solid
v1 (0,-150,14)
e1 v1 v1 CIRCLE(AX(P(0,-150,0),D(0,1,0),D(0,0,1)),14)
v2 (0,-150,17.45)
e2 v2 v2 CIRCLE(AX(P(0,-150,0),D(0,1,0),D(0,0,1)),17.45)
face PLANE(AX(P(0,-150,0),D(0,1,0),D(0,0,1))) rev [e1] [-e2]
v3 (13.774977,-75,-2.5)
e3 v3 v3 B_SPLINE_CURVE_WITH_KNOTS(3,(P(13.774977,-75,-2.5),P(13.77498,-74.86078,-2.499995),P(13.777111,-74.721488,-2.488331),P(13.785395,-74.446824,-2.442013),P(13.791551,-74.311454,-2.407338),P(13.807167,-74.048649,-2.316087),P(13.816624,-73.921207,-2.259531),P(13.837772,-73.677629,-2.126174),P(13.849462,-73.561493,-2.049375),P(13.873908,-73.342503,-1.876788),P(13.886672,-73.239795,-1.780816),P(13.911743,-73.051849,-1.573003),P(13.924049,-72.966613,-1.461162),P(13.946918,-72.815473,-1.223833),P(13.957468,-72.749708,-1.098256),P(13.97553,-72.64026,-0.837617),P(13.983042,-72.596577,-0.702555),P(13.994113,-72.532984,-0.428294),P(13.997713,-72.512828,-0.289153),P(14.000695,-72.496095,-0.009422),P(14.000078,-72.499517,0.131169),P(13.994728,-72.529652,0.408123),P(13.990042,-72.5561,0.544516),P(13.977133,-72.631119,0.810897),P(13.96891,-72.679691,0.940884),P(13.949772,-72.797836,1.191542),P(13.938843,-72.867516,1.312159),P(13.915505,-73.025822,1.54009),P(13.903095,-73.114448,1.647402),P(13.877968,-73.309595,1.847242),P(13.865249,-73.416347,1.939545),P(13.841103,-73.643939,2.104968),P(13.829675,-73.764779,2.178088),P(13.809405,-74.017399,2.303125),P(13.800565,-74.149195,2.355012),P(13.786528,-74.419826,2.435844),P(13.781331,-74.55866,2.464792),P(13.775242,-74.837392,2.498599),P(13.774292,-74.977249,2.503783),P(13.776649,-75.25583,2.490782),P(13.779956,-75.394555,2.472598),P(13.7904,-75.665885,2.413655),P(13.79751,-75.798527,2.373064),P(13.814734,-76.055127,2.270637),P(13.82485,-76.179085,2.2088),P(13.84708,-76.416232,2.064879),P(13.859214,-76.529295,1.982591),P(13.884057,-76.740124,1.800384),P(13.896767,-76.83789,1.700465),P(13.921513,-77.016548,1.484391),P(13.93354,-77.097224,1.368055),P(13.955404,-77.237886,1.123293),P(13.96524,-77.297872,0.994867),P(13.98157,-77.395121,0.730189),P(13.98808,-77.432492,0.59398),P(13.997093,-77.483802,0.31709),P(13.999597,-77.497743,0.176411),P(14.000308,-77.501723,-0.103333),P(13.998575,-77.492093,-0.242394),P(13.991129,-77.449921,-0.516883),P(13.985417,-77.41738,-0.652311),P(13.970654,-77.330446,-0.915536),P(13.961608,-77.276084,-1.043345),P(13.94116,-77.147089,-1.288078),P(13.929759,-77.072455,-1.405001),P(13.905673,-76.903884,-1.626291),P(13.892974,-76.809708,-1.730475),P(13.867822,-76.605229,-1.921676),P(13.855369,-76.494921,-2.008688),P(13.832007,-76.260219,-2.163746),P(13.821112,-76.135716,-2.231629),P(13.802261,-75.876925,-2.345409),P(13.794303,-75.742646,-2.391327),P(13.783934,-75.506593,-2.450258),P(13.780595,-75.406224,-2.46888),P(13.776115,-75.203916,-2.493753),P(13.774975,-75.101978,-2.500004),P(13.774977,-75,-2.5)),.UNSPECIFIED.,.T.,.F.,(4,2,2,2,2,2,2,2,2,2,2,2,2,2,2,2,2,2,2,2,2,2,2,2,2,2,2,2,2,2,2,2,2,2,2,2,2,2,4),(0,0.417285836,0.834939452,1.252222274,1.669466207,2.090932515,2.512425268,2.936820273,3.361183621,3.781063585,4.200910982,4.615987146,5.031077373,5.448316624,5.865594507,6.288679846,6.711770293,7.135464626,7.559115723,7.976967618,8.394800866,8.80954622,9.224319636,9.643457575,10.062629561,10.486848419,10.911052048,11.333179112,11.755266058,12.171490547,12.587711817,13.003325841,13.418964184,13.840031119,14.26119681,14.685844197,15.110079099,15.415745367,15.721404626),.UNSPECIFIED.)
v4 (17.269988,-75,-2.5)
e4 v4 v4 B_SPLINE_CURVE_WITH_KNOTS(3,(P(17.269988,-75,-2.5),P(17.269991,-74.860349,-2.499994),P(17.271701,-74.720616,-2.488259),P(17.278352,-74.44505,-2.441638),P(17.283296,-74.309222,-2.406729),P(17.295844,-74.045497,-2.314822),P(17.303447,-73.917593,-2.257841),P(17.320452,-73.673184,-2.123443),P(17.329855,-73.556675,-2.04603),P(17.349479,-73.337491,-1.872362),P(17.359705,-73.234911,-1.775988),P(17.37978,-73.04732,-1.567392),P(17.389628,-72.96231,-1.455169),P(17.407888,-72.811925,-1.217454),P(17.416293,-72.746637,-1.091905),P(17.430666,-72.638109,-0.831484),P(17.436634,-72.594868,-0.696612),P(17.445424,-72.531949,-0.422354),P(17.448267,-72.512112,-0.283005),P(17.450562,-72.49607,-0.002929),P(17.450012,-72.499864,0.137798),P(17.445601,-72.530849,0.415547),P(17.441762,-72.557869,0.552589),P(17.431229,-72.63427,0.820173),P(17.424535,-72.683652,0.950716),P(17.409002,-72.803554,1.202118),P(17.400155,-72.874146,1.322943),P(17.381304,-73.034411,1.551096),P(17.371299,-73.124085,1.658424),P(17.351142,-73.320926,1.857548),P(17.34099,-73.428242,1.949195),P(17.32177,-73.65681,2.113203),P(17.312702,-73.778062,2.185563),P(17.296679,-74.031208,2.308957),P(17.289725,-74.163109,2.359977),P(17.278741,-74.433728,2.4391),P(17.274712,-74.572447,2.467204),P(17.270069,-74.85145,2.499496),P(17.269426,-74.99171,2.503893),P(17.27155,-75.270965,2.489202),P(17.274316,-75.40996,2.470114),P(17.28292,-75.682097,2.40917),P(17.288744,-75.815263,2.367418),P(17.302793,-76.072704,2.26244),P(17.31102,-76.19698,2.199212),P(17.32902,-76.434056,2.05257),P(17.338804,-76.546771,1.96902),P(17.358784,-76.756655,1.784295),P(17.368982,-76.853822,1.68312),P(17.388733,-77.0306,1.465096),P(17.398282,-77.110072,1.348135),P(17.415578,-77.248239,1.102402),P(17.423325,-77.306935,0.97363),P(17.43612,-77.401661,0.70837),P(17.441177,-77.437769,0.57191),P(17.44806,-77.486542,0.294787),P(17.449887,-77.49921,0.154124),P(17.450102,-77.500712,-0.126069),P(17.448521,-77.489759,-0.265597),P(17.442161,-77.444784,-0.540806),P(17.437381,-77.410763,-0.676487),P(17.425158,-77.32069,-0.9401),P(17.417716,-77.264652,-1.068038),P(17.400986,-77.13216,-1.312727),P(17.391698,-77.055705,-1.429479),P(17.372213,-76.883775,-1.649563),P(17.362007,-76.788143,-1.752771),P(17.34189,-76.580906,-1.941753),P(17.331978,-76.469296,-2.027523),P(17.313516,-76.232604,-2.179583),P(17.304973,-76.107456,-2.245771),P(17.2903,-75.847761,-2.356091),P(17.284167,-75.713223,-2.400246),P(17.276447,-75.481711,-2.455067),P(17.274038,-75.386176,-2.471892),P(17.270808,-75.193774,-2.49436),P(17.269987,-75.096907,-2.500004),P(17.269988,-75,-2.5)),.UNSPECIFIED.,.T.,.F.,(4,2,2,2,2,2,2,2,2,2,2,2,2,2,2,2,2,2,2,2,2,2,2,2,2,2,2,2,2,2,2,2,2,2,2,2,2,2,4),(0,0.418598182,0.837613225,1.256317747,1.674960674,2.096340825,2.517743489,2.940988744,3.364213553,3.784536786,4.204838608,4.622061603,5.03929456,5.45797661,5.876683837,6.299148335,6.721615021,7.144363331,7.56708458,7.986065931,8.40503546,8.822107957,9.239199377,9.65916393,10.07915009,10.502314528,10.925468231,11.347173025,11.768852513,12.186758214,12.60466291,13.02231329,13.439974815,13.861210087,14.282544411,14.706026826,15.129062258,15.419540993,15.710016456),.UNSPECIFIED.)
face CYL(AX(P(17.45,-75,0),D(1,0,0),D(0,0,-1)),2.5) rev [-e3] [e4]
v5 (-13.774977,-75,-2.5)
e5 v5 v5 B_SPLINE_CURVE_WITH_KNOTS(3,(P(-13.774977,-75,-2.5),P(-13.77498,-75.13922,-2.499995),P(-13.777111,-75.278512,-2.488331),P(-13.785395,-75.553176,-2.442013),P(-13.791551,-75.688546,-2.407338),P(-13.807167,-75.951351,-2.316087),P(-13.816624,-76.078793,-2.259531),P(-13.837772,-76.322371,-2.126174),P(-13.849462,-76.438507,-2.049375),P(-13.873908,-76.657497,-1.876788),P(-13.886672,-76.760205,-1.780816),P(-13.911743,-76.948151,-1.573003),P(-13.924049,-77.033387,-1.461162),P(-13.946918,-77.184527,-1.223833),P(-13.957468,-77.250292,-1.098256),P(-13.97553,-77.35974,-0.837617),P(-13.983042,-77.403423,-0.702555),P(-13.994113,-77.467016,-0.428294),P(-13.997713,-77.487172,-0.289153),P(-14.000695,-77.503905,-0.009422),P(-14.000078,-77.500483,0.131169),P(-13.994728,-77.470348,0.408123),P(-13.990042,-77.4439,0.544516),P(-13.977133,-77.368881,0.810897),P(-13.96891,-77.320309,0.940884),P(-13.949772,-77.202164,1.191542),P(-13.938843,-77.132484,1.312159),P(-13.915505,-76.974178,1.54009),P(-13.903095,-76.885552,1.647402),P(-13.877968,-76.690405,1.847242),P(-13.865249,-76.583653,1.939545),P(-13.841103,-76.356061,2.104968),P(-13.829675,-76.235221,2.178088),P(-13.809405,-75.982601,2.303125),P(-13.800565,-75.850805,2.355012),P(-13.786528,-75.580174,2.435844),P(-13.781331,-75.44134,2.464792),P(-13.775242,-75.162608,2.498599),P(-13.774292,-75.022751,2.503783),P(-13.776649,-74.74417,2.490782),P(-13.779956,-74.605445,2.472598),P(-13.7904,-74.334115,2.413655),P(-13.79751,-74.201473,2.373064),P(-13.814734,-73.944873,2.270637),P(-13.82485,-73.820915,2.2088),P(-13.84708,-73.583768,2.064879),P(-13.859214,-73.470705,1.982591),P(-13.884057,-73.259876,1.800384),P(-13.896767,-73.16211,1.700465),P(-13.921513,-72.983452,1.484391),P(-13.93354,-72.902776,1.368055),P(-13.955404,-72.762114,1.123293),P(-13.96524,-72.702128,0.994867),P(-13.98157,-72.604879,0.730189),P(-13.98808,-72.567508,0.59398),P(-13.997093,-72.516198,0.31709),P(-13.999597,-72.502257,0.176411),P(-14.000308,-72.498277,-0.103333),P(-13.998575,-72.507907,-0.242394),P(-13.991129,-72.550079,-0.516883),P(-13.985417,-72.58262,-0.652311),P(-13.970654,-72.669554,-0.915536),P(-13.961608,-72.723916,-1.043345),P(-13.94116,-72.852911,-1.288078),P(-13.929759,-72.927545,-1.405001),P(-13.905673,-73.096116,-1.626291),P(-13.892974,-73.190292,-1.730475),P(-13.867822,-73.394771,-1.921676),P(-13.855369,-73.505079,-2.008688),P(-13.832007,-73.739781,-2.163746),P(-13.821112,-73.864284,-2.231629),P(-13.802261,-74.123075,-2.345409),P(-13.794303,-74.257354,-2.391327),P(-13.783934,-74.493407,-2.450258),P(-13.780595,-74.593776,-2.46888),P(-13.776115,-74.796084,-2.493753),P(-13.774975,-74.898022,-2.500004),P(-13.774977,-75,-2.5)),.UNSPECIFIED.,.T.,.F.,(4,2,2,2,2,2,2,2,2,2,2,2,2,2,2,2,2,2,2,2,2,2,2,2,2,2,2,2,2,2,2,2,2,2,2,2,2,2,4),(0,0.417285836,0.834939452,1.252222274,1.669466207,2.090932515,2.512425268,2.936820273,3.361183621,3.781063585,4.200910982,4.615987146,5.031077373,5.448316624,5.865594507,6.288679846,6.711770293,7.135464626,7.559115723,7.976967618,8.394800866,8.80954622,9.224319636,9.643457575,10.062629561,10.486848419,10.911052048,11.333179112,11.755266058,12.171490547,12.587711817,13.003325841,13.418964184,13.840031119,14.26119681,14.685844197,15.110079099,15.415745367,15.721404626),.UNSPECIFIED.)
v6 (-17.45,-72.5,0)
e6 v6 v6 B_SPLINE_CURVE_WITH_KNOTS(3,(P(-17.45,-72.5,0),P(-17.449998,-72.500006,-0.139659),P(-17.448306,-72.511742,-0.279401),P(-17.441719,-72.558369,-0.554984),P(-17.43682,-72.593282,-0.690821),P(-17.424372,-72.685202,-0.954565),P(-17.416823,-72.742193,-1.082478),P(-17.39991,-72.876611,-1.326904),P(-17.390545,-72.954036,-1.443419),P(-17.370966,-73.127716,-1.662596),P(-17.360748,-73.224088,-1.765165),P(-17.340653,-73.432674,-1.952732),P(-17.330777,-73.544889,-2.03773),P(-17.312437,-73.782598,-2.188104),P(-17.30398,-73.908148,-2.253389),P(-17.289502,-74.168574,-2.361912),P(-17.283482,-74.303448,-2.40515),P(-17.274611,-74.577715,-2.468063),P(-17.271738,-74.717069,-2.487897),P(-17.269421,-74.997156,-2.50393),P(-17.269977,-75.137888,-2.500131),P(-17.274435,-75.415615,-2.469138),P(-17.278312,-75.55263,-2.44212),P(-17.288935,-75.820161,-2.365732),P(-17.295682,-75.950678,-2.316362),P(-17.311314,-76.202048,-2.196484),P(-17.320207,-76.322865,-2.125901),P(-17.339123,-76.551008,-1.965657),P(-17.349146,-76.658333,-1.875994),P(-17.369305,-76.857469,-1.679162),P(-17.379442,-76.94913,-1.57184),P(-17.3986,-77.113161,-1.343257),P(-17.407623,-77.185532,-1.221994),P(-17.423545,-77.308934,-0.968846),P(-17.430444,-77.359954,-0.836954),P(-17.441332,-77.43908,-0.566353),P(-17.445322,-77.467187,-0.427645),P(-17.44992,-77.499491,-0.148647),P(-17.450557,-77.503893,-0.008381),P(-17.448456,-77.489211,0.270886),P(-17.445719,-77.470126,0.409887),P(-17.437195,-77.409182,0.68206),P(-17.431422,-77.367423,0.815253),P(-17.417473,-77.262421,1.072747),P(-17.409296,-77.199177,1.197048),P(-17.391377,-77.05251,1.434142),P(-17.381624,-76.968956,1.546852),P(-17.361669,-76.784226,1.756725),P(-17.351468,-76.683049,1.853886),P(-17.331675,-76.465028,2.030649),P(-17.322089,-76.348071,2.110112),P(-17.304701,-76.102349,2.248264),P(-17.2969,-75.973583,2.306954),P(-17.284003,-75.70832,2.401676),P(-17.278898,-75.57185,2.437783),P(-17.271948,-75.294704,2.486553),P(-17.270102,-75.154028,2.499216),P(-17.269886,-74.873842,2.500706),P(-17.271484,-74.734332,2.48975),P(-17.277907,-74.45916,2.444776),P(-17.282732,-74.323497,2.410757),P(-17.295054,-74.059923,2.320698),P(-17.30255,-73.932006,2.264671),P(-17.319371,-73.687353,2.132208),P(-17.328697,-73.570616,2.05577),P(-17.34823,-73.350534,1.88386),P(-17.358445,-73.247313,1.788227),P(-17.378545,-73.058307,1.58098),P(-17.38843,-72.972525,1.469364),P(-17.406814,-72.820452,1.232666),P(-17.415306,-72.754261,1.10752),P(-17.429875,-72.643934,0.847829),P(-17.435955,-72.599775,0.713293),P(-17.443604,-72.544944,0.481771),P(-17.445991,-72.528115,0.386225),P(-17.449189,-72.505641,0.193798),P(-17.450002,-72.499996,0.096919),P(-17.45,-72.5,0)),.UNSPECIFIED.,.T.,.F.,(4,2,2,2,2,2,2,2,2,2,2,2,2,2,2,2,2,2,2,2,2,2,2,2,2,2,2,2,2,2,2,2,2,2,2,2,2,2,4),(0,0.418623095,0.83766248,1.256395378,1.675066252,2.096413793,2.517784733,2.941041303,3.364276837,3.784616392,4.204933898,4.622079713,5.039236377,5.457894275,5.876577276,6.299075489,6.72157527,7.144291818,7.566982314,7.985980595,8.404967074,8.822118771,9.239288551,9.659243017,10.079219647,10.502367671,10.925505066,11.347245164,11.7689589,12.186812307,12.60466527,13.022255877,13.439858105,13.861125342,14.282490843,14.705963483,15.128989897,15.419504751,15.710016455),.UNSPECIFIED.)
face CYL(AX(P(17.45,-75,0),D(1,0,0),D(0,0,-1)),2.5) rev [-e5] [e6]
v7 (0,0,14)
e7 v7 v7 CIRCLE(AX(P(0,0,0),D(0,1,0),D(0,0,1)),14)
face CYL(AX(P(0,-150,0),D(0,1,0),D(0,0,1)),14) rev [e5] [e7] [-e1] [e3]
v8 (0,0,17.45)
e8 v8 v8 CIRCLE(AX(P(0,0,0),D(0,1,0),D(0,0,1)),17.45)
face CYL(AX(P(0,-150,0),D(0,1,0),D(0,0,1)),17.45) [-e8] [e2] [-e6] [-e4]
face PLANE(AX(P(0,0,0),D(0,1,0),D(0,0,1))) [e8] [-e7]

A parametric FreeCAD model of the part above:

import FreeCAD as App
import Part
import Sketcher

V = App.Vector
Q = App.Units.Quantity

doc = App.newDocument("Part")
body = doc.addObject("PartDesign::Body", "Body")

sketch1 = body.newObject("Sketcher::SketchObject", "Sketch")
sketch1.AttachmentSupport = (doc.getObject("XZ_Plane"), [""])
sketch1.MapMode = "FlatFace"
sketch1.addGeometry(Part.Circle(V(0, 0, 0), V(0, 0, 1), 17), False)
sketch1.addGeometry(Part.Circle(V(0, 0, 0), V(0, 0, 1), 14), False)
sketch1.addConstraint(Sketcher.Constraint("Coincident", 0, 3, -1, 1))
sketch1.addConstraint(Sketcher.Constraint("Coincident", 1, 3, -1, 1))
sketch1.addConstraint(Sketcher.Constraint("Diameter", 1, Q("28 mm")))
sketch1.addConstraint(Sketcher.Constraint("Diameter", 0, Q("34.9 mm")))
pad1 = body.newObject("PartDesign::Pad", "Pad")
pad1.Profile = sketch1
pad1.Length = 150

sketch2 = body.newObject("Sketcher::SketchObject", "Sketch001")
sketch2.AttachmentSupport = (doc.getObject("YZ_Plane"), [""])
sketch2.MapMode = "FlatFace"
sketch2.AttachmentOffset = App.Placement(V(0, 0, 17.45), App.Rotation())
sketch2.addGeometry(Part.Circle(V(-75, 0, 0), V(0, 0, 1), 2.5), False)
sketch2.addConstraint(Sketcher.Constraint("PointOnObject", 0, 3, -1))
sketch2.addConstraint(Sketcher.Constraint("Diameter", 0, Q("5 mm")))
sketch2.addConstraint(Sketcher.Constraint("DistanceX", 0, 3, -1, 1, Q("75 mm")))
doc.recompute()
hole = body.newObject("PartDesign::Hole", "Hole")
hole.Profile = sketch2
hole.ThreadType = "None"
hole.Diameter = 5
hole.DepthType = "ThroughAll"

doc.recompute()
